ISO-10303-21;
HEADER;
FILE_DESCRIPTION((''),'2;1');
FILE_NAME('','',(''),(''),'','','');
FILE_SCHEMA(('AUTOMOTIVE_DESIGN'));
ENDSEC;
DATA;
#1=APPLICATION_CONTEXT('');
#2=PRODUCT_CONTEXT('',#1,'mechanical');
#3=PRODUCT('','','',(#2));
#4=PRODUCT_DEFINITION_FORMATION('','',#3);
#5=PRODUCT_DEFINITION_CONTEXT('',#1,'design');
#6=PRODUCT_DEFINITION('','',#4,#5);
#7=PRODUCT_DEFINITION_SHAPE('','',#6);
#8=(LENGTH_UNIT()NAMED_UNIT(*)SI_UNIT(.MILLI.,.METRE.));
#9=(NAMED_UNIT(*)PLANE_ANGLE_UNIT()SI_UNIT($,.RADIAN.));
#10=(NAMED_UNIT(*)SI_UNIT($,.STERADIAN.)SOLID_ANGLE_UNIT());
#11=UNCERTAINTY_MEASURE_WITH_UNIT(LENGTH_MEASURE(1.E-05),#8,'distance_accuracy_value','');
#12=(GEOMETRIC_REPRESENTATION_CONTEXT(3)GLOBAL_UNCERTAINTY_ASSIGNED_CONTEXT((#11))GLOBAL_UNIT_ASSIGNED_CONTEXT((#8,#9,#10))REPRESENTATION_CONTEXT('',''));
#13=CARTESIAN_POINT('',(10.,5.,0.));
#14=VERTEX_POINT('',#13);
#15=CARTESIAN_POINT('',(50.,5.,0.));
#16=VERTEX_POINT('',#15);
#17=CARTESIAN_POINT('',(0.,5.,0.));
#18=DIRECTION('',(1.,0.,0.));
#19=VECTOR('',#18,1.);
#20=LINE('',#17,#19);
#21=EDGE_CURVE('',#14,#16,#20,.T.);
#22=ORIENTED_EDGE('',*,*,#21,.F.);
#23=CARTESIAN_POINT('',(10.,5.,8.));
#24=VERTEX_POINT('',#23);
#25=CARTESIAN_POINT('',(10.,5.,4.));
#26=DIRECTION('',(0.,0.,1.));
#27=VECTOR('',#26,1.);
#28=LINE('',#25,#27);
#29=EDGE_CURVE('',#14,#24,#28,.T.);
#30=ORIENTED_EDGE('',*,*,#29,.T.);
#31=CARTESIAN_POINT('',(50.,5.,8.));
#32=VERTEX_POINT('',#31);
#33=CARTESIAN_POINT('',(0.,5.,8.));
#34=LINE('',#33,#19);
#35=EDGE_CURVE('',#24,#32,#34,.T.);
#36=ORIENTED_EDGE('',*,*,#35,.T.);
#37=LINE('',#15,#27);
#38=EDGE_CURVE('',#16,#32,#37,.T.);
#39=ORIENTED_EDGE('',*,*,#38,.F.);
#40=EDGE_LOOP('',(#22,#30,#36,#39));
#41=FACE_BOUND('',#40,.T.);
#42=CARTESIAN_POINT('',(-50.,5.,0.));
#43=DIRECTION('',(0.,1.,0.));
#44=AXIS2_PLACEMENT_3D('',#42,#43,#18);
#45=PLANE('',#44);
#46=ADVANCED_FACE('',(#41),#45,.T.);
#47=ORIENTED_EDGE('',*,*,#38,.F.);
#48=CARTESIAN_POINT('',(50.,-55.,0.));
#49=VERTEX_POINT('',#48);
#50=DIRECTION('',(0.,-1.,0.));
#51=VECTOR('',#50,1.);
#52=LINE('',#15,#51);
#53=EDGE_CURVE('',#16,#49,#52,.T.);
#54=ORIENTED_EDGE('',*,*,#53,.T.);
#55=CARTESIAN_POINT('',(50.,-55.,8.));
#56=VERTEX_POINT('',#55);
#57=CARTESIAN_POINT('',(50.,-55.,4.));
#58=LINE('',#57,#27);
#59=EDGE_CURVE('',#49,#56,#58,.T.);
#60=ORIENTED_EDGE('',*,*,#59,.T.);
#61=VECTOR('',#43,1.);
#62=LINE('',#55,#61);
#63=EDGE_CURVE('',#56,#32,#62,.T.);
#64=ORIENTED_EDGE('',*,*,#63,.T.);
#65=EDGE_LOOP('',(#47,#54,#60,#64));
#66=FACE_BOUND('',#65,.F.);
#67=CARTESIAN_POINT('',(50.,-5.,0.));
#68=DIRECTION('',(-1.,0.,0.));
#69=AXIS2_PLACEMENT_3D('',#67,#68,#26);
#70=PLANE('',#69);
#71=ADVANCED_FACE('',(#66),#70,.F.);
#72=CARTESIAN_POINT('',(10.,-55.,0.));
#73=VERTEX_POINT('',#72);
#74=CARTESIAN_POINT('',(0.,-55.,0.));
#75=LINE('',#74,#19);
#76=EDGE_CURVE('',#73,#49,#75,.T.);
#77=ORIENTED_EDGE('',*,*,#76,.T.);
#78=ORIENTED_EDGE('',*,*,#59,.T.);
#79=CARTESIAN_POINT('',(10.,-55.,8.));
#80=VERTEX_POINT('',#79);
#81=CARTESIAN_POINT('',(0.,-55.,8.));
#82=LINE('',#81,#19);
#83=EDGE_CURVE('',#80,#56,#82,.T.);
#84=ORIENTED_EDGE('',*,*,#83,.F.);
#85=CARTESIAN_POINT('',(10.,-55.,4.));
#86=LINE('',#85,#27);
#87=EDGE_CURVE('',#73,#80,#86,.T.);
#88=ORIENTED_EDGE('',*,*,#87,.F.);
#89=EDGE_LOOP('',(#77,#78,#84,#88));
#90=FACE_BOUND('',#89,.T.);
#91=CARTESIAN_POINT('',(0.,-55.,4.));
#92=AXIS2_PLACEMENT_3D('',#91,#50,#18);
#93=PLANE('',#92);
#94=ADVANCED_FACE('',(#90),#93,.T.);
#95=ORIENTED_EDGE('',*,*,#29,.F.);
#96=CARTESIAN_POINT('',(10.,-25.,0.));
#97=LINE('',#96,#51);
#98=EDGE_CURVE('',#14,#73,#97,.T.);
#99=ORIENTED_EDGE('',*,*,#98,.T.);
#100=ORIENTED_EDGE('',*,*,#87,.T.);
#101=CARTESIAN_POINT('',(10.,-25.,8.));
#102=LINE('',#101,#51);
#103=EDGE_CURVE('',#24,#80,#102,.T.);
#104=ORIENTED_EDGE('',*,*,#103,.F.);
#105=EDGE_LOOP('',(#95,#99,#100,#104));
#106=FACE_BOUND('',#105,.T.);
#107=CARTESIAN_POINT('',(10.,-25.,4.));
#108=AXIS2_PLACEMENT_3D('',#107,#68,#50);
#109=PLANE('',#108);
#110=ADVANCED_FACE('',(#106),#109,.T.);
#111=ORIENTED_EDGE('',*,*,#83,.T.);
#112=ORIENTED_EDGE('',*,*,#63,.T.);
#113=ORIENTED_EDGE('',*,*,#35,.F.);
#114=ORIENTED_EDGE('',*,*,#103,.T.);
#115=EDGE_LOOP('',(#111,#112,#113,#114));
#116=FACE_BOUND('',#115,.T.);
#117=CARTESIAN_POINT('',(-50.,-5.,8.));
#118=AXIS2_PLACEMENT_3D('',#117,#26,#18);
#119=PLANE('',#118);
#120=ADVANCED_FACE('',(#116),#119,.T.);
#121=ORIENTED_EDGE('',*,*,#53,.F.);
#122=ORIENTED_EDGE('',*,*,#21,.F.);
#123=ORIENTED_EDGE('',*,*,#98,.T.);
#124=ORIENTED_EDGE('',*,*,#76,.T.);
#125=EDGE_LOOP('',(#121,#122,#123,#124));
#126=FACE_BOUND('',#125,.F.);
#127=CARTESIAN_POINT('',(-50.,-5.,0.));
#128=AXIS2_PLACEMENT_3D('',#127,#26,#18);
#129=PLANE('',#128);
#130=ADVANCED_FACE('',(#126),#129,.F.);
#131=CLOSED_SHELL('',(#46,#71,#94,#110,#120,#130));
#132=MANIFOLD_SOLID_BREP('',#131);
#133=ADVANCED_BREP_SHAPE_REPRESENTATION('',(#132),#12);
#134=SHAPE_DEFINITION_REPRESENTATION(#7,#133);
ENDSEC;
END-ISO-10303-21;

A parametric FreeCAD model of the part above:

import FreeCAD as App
import Part
import Sketcher

V = App.Vector
Q = App.Units.Quantity


def add_polygon(sketch, points):
    """Adds a closed chain of lines whose ends are joined by coincident constraints."""
    first, n = sketch.GeometryCount, len(points)
    for a, b in zip(points, points[1:] + points[:1]):
        sketch.addGeometry(Part.LineSegment(App.Vector(*a, 0), App.Vector(*b, 0)), False)
    for i in range(n):
        sketch.addConstraint(Sketcher.Constraint("Coincident", first + i, 2, first + (i + 1) % n, 1))

doc = App.newDocument("Part")
params = doc.addObject("Spreadsheet::Sheet", "Params")
for row, (alias, value) in enumerate([
    ("sketch1_width", "100 mm"),
    ("sketch1_height", "10 mm"),
    ("pad1_length", "8 mm"),
    ("sketch2_width", "100 mm"),
    ("sketch2_height", "8 mm"),
    ("pad2_length", "50 mm"),
    ("sketch3_width", "60 mm"),
    ("sketch3_height", "8 mm"),
    ("pocket1_length", "60 mm"),
], start=1):
    params.set(f"A{row}", alias)
    params.set(f"B{row}", "=" + value)
    params.setAlias(f"B{row}", alias)

body = doc.addObject("PartDesign::Body", "Body")

# Sketch on XY plane
sketch1 = body.newObject("Sketcher::SketchObject", "Sketch")
sketch1.AttachmentSupport = (doc.getObject("XY_Plane"), [""])
sketch1.MapMode = "FlatFace"
add_polygon(sketch1, [(-50, 5), (-50, -5), (50, -5), (50, 5)])  # lines 0-3
sketch1.addConstraint([
    Sketcher.Constraint("Vertical", 0),
    Sketcher.Constraint("Horizontal", 1),
    Sketcher.Constraint("Vertical", 2),
    Sketcher.Constraint("Horizontal", 3),
    Sketcher.Constraint("Symmetric", 0, 2, 2, 2, -1, 1),
    Sketcher.Constraint("DistanceX", 1, 1, 1, 2, Q("100 mm")),
    Sketcher.Constraint("DistanceY", 0, 2, 0, 1, Q("10 mm")),
])
sketch1.setExpression("Constraints[9]", "Params.sketch1_width")
sketch1.setExpression("Constraints[10]", "Params.sketch1_height")
pad1 = body.newObject("PartDesign::Pad", "Pad")
pad1.Profile = sketch1
pad1.setExpression("Length", "Params.pad1_length")

# Sketch on XZ plane
sketch2 = body.newObject("Sketcher::SketchObject", "Sketch001")
sketch2.AttachmentSupport = (doc.getObject("XZ_Plane"), [""])
sketch2.MapMode = "FlatFace"
sketch2.AttachmentOffset = App.Placement(V(0, 0, 5), App.Rotation())
add_polygon(sketch2, [(-50, 8), (-50, 0), (50, 0), (50, 8)])  # lines 0-3
sketch2.addConstraint([
    Sketcher.Constraint("Vertical", 0),
    Sketcher.Constraint("Horizontal", 1),
    Sketcher.Constraint("Vertical", 2),
    Sketcher.Constraint("Horizontal", 3),
    Sketcher.Constraint("Symmetric", 0, 2, 1, 2, -1, 1),
    Sketcher.Constraint("DistanceX", 1, 1, 1, 2, Q("100 mm")),
    Sketcher.Constraint("DistanceY", 0, 2, 0, 1, Q("8 mm")),
])
sketch2.setExpression("Constraints[9]", "Params.sketch2_width")
sketch2.setExpression("Constraints[10]", "Params.sketch2_height")
pad2 = body.newObject("PartDesign::Pad", "Pad001")
pad2.Profile = sketch2
pad2.setExpression("Length", "Params.pad2_length")

# Sketch on YZ plane
sketch3 = body.newObject("Sketcher::SketchObject", "Sketch002")
sketch3.AttachmentSupport = (doc.getObject("YZ_Plane"), [""])
sketch3.MapMode = "FlatFace"
sketch3.AttachmentOffset = App.Placement(V(0, 0, -50), App.Rotation())
add_polygon(sketch3, [(5, 8), (5, 0), (-55, 0), (-55, 8)])  # lines 0-3
sketch3.addConstraint([
    Sketcher.Constraint("Vertical", 0),
    Sketcher.Constraint("Horizontal", 1),
    Sketcher.Constraint("Vertical", 2),
    Sketcher.Constraint("Horizontal", 3),
    Sketcher.Constraint("PointOnObject", 0, 2, -1),
    Sketcher.Constraint("DistanceX", 1, 2, 1, 1, Q("60 mm")),
    Sketcher.Constraint("DistanceY", 0, 2, 0, 1, Q("8 mm")),
    Sketcher.Constraint("DistanceX", -1, 1, 0, 2, Q("5 mm")),
])
sketch3.setExpression("Constraints[9]", "Params.sketch3_width")
sketch3.setExpression("Constraints[10]", "Params.sketch3_height")
pocket1 = body.newObject("PartDesign::Pocket", "Pocket")
pocket1.Profile = sketch3
pocket1.setExpression("Length", "Params.pocket1_length")
pocket1.Reversed = True

doc.recompute()
